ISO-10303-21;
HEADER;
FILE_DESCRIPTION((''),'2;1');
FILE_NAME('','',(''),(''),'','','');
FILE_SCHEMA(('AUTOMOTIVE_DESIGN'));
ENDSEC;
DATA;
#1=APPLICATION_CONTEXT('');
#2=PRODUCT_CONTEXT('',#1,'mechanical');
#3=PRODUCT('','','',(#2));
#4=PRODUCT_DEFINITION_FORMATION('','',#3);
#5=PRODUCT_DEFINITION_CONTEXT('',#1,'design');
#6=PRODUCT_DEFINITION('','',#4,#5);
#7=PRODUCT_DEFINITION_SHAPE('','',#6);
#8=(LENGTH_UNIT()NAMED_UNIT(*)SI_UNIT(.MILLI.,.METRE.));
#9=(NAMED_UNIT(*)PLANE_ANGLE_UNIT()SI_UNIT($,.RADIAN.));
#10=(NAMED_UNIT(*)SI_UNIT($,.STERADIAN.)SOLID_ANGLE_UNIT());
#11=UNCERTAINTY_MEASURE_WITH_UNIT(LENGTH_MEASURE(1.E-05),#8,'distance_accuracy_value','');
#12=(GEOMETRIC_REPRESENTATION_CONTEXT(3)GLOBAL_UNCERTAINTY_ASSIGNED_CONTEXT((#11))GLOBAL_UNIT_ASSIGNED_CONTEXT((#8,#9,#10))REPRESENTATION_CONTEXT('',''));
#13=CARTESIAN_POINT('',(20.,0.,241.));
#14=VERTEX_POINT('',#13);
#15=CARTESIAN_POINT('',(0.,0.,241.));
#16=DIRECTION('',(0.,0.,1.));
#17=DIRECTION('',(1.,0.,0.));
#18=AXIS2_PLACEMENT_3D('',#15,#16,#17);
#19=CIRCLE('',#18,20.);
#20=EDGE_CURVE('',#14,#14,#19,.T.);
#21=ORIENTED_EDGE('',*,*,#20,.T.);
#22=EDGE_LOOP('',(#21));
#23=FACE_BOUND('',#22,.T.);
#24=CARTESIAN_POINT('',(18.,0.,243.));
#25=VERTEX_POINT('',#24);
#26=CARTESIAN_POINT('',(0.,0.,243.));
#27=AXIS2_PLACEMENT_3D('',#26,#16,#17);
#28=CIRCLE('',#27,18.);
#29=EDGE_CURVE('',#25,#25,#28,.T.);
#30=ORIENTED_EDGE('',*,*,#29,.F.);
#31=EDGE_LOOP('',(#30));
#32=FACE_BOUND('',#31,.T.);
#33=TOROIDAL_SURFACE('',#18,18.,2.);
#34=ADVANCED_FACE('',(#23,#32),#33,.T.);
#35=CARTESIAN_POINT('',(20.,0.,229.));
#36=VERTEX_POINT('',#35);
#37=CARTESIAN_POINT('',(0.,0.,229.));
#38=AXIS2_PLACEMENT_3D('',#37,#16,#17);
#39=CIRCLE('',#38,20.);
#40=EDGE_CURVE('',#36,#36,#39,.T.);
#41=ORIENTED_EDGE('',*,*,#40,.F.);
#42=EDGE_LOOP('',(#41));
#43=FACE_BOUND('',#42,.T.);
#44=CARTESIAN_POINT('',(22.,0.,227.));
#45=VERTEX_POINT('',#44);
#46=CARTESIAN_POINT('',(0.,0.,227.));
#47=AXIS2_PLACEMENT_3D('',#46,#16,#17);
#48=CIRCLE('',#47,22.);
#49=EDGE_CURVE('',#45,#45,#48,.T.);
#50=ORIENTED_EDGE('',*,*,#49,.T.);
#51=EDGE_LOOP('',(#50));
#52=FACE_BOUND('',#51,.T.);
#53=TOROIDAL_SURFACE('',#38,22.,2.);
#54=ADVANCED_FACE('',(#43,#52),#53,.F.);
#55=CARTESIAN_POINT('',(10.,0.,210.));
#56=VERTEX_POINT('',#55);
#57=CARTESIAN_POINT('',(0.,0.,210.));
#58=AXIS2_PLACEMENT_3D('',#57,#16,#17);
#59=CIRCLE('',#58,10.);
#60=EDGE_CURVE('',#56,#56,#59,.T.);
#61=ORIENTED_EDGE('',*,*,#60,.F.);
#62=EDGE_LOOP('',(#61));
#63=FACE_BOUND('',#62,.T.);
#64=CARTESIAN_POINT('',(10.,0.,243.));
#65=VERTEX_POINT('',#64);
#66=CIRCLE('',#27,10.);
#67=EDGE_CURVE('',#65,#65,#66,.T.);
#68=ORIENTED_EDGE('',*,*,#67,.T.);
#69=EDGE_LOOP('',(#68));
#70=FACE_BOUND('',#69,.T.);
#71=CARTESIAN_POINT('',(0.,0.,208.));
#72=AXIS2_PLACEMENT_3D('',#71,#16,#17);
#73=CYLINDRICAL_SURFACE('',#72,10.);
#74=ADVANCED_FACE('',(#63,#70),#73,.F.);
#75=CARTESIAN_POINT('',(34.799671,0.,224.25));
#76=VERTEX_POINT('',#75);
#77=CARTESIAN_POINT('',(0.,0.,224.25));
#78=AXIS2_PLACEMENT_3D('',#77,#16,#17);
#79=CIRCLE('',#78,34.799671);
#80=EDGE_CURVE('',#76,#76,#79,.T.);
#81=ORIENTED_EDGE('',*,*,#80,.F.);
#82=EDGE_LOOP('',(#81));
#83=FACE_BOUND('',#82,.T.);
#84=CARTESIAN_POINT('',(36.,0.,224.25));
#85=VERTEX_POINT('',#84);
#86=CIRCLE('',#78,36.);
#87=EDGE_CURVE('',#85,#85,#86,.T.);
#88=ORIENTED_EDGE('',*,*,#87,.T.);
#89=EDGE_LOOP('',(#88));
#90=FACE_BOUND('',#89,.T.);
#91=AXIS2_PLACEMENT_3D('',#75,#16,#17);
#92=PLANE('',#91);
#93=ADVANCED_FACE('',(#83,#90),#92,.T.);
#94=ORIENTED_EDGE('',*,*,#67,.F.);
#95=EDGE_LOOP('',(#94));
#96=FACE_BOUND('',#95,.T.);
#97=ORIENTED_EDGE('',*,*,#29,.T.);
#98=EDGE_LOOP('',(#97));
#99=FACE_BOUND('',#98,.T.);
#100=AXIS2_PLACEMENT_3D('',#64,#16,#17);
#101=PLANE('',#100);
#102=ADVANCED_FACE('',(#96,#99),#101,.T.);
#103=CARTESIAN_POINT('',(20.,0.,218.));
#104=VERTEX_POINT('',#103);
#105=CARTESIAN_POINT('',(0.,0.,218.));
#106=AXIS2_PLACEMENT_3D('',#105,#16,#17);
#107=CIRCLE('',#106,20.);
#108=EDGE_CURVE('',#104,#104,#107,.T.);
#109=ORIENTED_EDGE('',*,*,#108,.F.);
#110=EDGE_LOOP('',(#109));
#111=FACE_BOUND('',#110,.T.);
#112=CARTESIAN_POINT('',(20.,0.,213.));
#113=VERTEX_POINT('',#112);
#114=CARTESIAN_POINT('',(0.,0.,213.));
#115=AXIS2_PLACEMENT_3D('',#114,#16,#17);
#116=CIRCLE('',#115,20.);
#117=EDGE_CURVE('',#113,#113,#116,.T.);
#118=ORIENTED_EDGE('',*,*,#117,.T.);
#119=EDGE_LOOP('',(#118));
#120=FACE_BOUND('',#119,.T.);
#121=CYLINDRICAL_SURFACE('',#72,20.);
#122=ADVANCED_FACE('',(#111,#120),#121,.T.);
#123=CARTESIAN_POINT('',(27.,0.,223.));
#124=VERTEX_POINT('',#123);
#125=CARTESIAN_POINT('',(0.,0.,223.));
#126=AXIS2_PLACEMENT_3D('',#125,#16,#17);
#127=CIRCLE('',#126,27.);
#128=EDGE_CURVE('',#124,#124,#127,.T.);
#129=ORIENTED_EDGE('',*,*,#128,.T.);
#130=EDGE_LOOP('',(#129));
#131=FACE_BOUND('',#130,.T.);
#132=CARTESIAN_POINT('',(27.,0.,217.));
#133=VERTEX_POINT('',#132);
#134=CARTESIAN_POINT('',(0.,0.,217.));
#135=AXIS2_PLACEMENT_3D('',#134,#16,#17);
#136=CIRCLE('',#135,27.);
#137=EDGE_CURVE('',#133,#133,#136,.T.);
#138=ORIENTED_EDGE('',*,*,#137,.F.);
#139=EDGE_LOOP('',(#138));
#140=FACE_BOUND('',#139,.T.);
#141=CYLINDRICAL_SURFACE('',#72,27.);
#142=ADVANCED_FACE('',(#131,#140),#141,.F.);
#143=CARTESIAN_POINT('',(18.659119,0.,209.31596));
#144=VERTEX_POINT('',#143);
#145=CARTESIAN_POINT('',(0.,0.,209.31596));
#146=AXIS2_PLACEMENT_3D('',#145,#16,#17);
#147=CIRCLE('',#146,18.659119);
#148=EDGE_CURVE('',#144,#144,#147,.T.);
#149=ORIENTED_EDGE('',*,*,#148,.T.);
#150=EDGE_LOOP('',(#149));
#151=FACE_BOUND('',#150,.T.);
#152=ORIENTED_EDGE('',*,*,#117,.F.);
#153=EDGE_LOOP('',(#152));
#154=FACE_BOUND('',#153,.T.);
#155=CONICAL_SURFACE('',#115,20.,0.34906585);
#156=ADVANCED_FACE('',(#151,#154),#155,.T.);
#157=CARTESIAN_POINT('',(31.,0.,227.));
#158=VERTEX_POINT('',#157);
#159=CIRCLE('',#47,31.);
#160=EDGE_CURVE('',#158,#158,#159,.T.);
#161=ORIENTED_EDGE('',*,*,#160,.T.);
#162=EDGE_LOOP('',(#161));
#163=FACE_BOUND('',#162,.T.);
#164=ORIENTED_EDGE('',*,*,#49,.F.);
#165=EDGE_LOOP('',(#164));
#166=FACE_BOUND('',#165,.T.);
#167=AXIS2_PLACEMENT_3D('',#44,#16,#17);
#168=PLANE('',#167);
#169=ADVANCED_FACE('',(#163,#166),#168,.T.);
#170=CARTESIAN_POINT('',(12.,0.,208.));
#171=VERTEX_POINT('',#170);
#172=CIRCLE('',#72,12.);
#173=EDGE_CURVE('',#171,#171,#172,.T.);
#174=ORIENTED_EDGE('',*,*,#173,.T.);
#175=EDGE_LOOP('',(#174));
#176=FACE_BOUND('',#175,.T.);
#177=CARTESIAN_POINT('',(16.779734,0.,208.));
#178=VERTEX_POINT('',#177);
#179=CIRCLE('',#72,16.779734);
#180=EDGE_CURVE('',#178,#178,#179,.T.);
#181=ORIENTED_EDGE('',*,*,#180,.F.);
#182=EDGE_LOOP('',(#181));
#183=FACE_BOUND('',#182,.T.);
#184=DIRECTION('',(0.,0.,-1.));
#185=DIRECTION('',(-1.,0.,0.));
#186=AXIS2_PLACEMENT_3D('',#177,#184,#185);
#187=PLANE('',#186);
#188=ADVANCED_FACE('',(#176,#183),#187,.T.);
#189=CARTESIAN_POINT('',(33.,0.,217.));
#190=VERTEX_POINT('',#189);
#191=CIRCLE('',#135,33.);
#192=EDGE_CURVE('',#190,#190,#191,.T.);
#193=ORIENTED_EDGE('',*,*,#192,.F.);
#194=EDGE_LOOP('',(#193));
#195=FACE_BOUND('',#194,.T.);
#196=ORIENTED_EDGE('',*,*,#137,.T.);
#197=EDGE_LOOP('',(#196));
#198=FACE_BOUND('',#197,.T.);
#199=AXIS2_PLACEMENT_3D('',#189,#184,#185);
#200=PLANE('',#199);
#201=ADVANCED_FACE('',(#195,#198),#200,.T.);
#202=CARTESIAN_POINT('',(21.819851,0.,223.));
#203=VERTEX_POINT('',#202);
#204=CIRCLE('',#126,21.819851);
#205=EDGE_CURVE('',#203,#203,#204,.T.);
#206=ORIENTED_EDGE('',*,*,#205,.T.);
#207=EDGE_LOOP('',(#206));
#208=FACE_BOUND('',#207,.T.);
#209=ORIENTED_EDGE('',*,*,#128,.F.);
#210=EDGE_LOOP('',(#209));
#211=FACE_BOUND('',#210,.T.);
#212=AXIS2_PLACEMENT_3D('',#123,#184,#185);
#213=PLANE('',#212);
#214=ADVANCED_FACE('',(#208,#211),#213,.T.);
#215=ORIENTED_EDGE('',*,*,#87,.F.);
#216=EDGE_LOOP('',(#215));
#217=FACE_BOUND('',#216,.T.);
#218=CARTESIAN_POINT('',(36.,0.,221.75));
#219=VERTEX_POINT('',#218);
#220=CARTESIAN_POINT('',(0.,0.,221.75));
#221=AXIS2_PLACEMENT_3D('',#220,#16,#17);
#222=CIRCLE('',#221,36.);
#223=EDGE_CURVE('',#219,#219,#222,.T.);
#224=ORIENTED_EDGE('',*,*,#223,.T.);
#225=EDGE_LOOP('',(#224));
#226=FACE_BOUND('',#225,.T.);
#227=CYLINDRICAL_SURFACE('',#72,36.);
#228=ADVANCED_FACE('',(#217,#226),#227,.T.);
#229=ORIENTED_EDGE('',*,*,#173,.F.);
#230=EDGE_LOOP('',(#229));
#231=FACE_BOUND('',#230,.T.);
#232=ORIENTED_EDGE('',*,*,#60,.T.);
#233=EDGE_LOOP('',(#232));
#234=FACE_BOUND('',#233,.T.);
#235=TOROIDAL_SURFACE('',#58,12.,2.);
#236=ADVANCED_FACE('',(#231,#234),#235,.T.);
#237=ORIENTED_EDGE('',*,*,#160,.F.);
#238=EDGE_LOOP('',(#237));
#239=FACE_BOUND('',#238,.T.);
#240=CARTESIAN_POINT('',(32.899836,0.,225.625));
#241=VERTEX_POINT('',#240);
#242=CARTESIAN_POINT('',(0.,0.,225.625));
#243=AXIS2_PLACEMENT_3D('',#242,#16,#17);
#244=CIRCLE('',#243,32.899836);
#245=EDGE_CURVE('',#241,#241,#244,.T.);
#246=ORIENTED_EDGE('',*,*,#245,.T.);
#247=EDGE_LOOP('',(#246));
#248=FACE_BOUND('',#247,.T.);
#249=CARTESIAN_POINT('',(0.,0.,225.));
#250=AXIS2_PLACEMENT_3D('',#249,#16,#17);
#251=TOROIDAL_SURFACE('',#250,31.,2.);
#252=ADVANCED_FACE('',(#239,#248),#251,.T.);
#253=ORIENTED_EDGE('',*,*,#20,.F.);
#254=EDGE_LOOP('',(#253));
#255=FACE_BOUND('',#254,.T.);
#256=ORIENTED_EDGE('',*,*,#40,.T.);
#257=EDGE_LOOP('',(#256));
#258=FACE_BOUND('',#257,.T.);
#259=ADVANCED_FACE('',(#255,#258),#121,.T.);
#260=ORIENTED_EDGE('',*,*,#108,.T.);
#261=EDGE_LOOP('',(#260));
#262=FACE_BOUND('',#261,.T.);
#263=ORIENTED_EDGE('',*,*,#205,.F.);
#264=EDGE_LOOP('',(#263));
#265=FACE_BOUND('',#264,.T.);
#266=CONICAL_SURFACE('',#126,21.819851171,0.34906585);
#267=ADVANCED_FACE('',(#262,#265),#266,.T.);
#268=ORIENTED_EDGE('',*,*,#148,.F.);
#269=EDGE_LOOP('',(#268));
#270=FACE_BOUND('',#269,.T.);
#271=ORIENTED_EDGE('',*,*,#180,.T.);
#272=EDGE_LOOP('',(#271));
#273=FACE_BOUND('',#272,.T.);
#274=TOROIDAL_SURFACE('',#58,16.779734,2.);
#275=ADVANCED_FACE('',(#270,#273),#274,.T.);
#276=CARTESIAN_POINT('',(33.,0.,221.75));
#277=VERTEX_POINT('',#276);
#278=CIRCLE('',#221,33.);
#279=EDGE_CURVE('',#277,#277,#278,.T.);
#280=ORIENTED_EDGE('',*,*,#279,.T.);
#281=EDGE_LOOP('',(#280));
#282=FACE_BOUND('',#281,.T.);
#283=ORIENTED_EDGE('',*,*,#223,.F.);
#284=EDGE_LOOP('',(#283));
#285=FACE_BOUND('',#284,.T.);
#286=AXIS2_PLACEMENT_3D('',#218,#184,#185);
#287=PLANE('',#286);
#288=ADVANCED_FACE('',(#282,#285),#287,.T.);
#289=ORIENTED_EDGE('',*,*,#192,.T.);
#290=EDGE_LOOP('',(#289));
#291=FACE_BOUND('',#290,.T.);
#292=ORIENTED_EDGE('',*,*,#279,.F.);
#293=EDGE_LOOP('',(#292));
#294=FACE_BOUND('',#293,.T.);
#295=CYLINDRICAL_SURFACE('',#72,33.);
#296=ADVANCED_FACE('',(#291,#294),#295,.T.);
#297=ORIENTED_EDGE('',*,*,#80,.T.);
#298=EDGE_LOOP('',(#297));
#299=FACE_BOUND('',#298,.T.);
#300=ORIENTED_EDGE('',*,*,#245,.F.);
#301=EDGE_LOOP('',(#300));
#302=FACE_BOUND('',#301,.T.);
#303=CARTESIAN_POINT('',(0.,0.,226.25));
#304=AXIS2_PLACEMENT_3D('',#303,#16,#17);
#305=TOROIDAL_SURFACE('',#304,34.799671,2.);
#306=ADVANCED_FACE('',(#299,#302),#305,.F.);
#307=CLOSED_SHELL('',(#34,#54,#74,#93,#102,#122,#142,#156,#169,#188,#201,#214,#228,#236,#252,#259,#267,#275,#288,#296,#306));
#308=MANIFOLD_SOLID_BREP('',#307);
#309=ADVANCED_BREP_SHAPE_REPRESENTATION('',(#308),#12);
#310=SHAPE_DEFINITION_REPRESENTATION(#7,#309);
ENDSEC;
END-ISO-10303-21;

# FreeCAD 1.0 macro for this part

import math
import FreeCAD as App
import Part
import Sketcher
Q = App.Units.Quantity

doc = App.newDocument("Part")
body = doc.addObject("PartDesign::Body", "Body")

# Sketch on XZ plane
sketch1 = body.newObject("Sketcher::SketchObject", "Sketch")
sketch1.AttachmentSupport = (doc.getObject("XZ_Plane"), [""])
sketch1.MapMode = "FlatFace"
sketch1.addGeometry(Part.LineSegment(App.Vector(22, 227, 0), App.Vector(31, 227, 0)), False)
sketch1.addGeometry(Part.ArcOfCircle(Part.Circle(App.Vector(31, 225, 0), App.Vector(0, 0, 1), 2), math.radians(18), math.radians(90)), False)
sketch1.addGeometry(Part.ArcOfCircle(Part.Circle(App.Vector(34.8, 226.2, 0), App.Vector(0, 0, 1), 2), math.radians(-162), math.radians(-90)), False)
sketch1.addGeometry(Part.LineSegment(App.Vector(34.8, 224.2, 0), App.Vector(36, 224.2, 0)), False)
sketch1.addGeometry(Part.LineSegment(App.Vector(36, 224.2, 0), App.Vector(36, 221.8, 0)), False)
sketch1.addGeometry(Part.LineSegment(App.Vector(36, 221.8, 0), App.Vector(33, 221.8, 0)), False)
sketch1.addGeometry(Part.LineSegment(App.Vector(33, 221.8, 0), App.Vector(33, 217, 0)), False)
sketch1.addGeometry(Part.LineSegment(App.Vector(33, 217, 0), App.Vector(27, 217, 0)), False)
sketch1.addGeometry(Part.LineSegment(App.Vector(27, 217, 0), App.Vector(27, 223, 0)), False)
sketch1.addGeometry(Part.LineSegment(App.Vector(27, 223, 0), App.Vector(21.8, 223, 0)), False)
sketch1.addGeometry(Part.LineSegment(App.Vector(21.8, 223, 0), App.Vector(20, 218, 0)), False)
sketch1.addGeometry(Part.LineSegment(App.Vector(20, 218, 0), App.Vector(20, 213, 0)), False)
sketch1.addGeometry(Part.LineSegment(App.Vector(20, 213, 0), App.Vector(18.7, 209.3, 0)), False)
sketch1.addGeometry(Part.ArcOfCircle(Part.Circle(App.Vector(16.8, 210, 0), App.Vector(0, 0, 1), 2), math.radians(-90), math.radians(-20)), False)
sketch1.addGeometry(Part.LineSegment(App.Vector(16.8, 208, 0), App.Vector(12, 208, 0)), False)
sketch1.addGeometry(Part.ArcOfCircle(Part.Circle(App.Vector(12, 210, 0), App.Vector(0, 0, 1), 2), math.radians(-180), math.radians(-90)), False)
sketch1.addGeometry(Part.LineSegment(App.Vector(10, 210, 0), App.Vector(10, 243, 0)), False)
sketch1.addGeometry(Part.LineSegment(App.Vector(10, 243, 0), App.Vector(18, 243, 0)), False)
sketch1.addGeometry(Part.ArcOfCircle(Part.Circle(App.Vector(18, 241, 0), App.Vector(0, 0, 1), 2), math.radians(0), math.radians(90)), False)
sketch1.addGeometry(Part.LineSegment(App.Vector(20, 241, 0), App.Vector(20, 229, 0)), False)
sketch1.addGeometry(Part.ArcOfCircle(Part.Circle(App.Vector(22, 229, 0), App.Vector(0, 0, 1), 2), math.radians(-180), math.radians(-90)), False)
sketch1.addConstraint(Sketcher.Constraint("Tangent", 0, 2, 1, 2))
sketch1.addConstraint(Sketcher.Constraint("Tangent", 1, 1, 2, 1))
sketch1.addConstraint(Sketcher.Constraint("Tangent", 2, 2, 3, 1))
sketch1.addConstraint(Sketcher.Constraint("Coincident", 3, 2, 4, 1))
sketch1.addConstraint(Sketcher.Constraint("Coincident", 4, 2, 5, 1))
sketch1.addConstraint(Sketcher.Constraint("Coincident", 5, 2, 6, 1))
sketch1.addConstraint(Sketcher.Constraint("Coincident", 6, 2, 7, 1))
sketch1.addConstraint(Sketcher.Constraint("Coincident", 7, 2, 8, 1))
sketch1.addConstraint(Sketcher.Constraint("Coincident", 8, 2, 9, 1))
sketch1.addConstraint(Sketcher.Constraint("Coincident", 9, 2, 10, 1))
sketch1.addConstraint(Sketcher.Constraint("Coincident", 10, 2, 11, 1))
sketch1.addConstraint(Sketcher.Constraint("Coincident", 11, 2, 12, 1))
sketch1.addConstraint(Sketcher.Constraint("Tangent", 12, 2, 13, 2))
sketch1.addConstraint(Sketcher.Constraint("Tangent", 13, 1, 14, 1))
sketch1.addConstraint(Sketcher.Constraint("Tangent", 14, 2, 15, 2))
sketch1.addConstraint(Sketcher.Constraint("Tangent", 15, 1, 16, 1))
sketch1.addConstraint(Sketcher.Constraint("Coincident", 16, 2, 17, 1))
sketch1.addConstraint(Sketcher.Constraint("Tangent", 17, 2, 18, 2))
sketch1.addConstraint(Sketcher.Constraint("Tangent", 18, 1, 19, 1))
sketch1.addConstraint(Sketcher.Constraint("Tangent", 19, 2, 20, 1))
sketch1.addConstraint(Sketcher.Constraint("Tangent", 20, 2, 0, 1))
sketch1.addConstraint(Sketcher.Constraint("Horizontal", 0))
sketch1.addConstraint(Sketcher.Constraint("Horizontal", 3))
sketch1.addConstraint(Sketcher.Constraint("Vertical", 4))
sketch1.addConstraint(Sketcher.Constraint("Horizontal", 5))
sketch1.addConstraint(Sketcher.Constraint("Vertical", 6))
sketch1.addConstraint(Sketcher.Constraint("Horizontal", 7))
sketch1.addConstraint(Sketcher.Constraint("Vertical", 8))
sketch1.addConstraint(Sketcher.Constraint("Horizontal", 9))
sketch1.addConstraint(Sketcher.Constraint("Vertical", 11))
sketch1.addConstraint(Sketcher.Constraint("Horizontal", 14))
sketch1.addConstraint(Sketcher.Constraint("Vertical", 16))
sketch1.addConstraint(Sketcher.Constraint("Horizontal", 17))
sketch1.addConstraint(Sketcher.Constraint("Vertical", 19))
sketch1.addConstraint(Sketcher.Constraint("Equal", 1, 2))
sketch1.addConstraint(Sketcher.Constraint("Equal", 2, 13))
sketch1.addConstraint(Sketcher.Constraint("Equal", 13, 15))
sketch1.addConstraint(Sketcher.Constraint("Equal", 15, 18))
sketch1.addConstraint(Sketcher.Constraint("Equal", 18, 20))
sketch1.addConstraint(Sketcher.Constraint("Parallel", 10, 12))
sketch1.addConstraint(Sketcher.Constraint("Vertical", 11, 2, 18, 1))
sketch1.addConstraint(Sketcher.Constraint("Equal", 7, 8))
sketch1.addConstraint(Sketcher.Constraint("Radius", 1, 2.0))
sketch1.addConstraint(Sketcher.Constraint("DistanceX", 0, 1, 0, 2, 9.0))
sketch1.addConstraint(Sketcher.Constraint("DistanceX", 5, 2, 5, 1, 3.0))
sketch1.addConstraint(Sketcher.Constraint("DistanceX", 7, 2, 7, 1, 6.0))
sketch1.addConstraint(Sketcher.Constraint("DistanceX", 17, 1, 17, 2, 8.0))
sketch1.addConstraint(Sketcher.Constraint("DistanceY", 11, 2, 11, 1, 5.0))
sketch1.addConstraint(Sketcher.Constraint("DistanceY", 16, 1, 16, 2, 33.0))
sketch1.addConstraint(Sketcher.Constraint("DistanceY", 19, 2, 19, 1, 12.0))
sketch1.addConstraint(Sketcher.Constraint("Angle", 10, Q("-110 deg")))
sketch1.addConstraint(Sketcher.Constraint("DistanceY", 4, 2, 4, 1, 2.5))
sketch1.addConstraint(Sketcher.Constraint("DistanceX", -1, 1, 1, 3, 31.0))
sketch1.addConstraint(Sketcher.Constraint("DistanceY", -1, 1, 1, 3, 225.0))
sketch1.addConstraint(Sketcher.Constraint("DistanceX", -1, 1, 3, 2, 36.0))
sketch1.addConstraint(Sketcher.Constraint("DistanceY", -1, 1, 6, 2, 217.0))
sketch1.addConstraint(Sketcher.Constraint("DistanceY", -1, 1, 10, 2, 218.0))
sketch1.addConstraint(Sketcher.Constraint("DistanceY", 6, 2, 6, 1, 4.75))
revolution = body.newObject("PartDesign::Revolution", "Revolution")
revolution.Profile = sketch1
revolution.ReferenceAxis = (sketch1, ["V_Axis"])
revolution.Angle = 360

doc.recompute()
